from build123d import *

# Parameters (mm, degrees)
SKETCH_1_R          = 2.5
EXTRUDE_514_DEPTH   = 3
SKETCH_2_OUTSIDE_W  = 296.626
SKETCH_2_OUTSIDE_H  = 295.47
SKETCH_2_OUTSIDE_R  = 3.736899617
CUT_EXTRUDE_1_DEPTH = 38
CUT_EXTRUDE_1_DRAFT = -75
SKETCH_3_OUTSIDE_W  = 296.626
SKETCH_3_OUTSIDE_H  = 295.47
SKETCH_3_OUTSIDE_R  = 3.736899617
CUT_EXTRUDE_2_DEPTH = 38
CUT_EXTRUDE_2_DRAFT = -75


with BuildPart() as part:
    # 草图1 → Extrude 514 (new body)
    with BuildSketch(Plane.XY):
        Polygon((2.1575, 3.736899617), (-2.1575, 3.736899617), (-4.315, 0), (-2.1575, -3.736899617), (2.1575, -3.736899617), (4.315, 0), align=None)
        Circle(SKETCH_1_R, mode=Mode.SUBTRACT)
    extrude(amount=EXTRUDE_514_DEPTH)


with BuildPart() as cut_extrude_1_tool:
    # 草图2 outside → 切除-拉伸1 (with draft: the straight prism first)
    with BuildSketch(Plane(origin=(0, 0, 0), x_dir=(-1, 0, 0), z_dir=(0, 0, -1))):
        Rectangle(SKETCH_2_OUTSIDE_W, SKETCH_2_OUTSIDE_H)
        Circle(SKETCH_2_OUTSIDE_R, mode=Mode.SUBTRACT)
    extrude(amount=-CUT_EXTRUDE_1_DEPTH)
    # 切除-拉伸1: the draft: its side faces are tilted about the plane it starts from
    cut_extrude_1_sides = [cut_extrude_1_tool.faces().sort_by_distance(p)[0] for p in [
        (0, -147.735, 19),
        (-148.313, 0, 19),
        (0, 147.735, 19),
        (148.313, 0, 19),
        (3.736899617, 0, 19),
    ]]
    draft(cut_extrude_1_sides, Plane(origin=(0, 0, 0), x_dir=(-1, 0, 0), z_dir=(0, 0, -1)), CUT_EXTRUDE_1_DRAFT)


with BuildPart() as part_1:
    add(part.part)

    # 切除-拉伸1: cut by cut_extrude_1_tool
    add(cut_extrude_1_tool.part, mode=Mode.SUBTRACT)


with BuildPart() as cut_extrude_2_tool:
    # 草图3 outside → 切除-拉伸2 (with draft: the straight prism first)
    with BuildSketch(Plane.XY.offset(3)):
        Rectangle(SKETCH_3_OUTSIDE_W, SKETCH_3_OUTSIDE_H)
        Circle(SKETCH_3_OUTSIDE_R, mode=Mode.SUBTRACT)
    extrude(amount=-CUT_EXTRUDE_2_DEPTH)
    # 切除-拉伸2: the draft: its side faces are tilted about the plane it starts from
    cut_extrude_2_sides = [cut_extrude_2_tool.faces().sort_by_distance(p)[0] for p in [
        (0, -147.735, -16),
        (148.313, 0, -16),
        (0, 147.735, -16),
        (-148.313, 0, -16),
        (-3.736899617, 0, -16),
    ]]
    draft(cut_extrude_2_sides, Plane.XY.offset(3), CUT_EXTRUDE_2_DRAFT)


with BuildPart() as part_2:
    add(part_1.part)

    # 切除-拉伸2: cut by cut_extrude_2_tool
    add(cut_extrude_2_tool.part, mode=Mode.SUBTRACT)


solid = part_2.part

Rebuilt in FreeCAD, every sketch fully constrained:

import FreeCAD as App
import Part
import Sketcher
Q = App.Units.Quantity


def faces_at(feature, points):
    """Names of the faces that lie closest to the given points."""
    faces = feature.Shape.Faces
    near = lambda p: min(range(len(faces)), key=lambda i: faces[i].distToShape(Part.Vertex(*p))[0])
    return sorted({f"Face{near(p) + 1}" for p in points})

doc = App.newDocument("Part")
body = doc.addObject("PartDesign::Body", "Body")

# Sketch on XY plane
sketch1 = body.newObject("Sketcher::SketchObject", "Sketch")
sketch1.AttachmentSupport = (doc.getObject("XY_Plane"), [""])
sketch1.MapMode = "FlatFace"
sketch1.addGeometry([
    Part.LineSegment(App.Vector(2.2, 3.7, 0), App.Vector(-2.2, 3.7, 0)),  # 0
    Part.LineSegment(App.Vector(-2.2, 3.7, 0), App.Vector(-4.3, 0, 0)),  # 1
    Part.LineSegment(App.Vector(-4.3, 0, 0), App.Vector(-2.2, -3.7, 0)),  # 2
    Part.LineSegment(App.Vector(-2.2, -3.7, 0), App.Vector(2.2, -3.7, 0)),  # 3
    Part.LineSegment(App.Vector(2.2, -3.7, 0), App.Vector(4.3, 0, 0)),  # 4
    Part.LineSegment(App.Vector(4.3, 0, 0), App.Vector(2.2, 3.7, 0)),  # 5
    Part.Circle(App.Vector(0, 0, 0), App.Vector(0, 0, 1), 2.5),  # 6
], False)
sketch1.addConstraint([
    Sketcher.Constraint("Coincident", 0, 2, 1, 1),
    Sketcher.Constraint("Coincident", 1, 2, 2, 1),
    Sketcher.Constraint("Coincident", 2, 2, 3, 1),
    Sketcher.Constraint("Coincident", 3, 2, 4, 1),
    Sketcher.Constraint("Coincident", 4, 2, 5, 1),
    Sketcher.Constraint("Coincident", 5, 2, 0, 1),
    Sketcher.Constraint("Horizontal", 0),
    Sketcher.Constraint("Horizontal", 3),
    Sketcher.Constraint("Coincident", 6, 3, -1, 1),
    Sketcher.Constraint("Symmetric", 0, 2, 3, 2, -1, 1),
    Sketcher.Constraint("Symmetric", 1, 2, 4, 2, -1, 1),
    Sketcher.Constraint("PointOnObject", 1, 2, -1),
    Sketcher.Constraint("Parallel", 2, 5),
    Sketcher.Constraint("Vertical", 0, 2, 2, 2),
    Sketcher.Constraint("Diameter", 6, Q("5 mm")),
    Sketcher.Constraint("Angle", 1, Q("-120 deg")),
    Sketcher.Constraint("DistanceX", 0, 2, 0, 1, Q("4.315 mm")),
    Sketcher.Constraint("DistanceX", 1, 2, 4, 2, Q("8.63 mm")),
])
pad1 = body.newObject("PartDesign::Pad", "Pad")
pad1.Profile = sketch1
pad1.Length = 3
body2 = doc.addObject("PartDesign::Body", "Body001")

# Sketch on XY plane
sketch2 = body2.newObject("Sketcher::SketchObject", "Sketch001")
sketch2.AttachmentSupport = (doc.getObject("XY_Plane001"), [""])
sketch2.MapMode = "FlatFace"
sketch2.addGeometry([
    Part.LineSegment(App.Vector(148.3, 147.7, 0), App.Vector(148.3, -147.7, 0)),  # 0
    Part.LineSegment(App.Vector(148.3, -147.7, 0), App.Vector(-148.3, -147.7, 0)),  # 1
    Part.LineSegment(App.Vector(-148.3, -147.7, 0), App.Vector(-148.3, 147.7, 0)),  # 2
    Part.LineSegment(App.Vector(-148.3, 147.7, 0), App.Vector(148.3, 147.7, 0)),  # 3
    Part.Circle(App.Vector(0, 0, 0), App.Vector(0, 0, 1), 3.7),  # 4
], False)
sketch2.addConstraint([
    Sketcher.Constraint("Coincident", 0, 2, 1, 1),
    Sketcher.Constraint("Coincident", 1, 2, 2, 1),
    Sketcher.Constraint("Coincident", 2, 2, 3, 1),
    Sketcher.Constraint("Coincident", 3, 2, 0, 1),
    Sketcher.Constraint("Vertical", 0),
    Sketcher.Constraint("Horizontal", 1),
    Sketcher.Constraint("Vertical", 2),
    Sketcher.Constraint("Horizontal", 3),
    Sketcher.Constraint("Coincident", 4, 3, -1, 1),
    Sketcher.Constraint("Symmetric", 0, 2, 2, 2, -1, 1),
    Sketcher.Constraint("Diameter", 4, Q("7.473799 mm")),
    Sketcher.Constraint("DistanceY", 0, 2, 0, 1, Q("295.47 mm")),
    Sketcher.Constraint("DistanceX", 1, 2, 1, 1, Q("296.626 mm")),
])
pad2 = body2.newObject("PartDesign::Pad", "Pad001")
pad2.Profile = sketch2
pad2.Length = 38
doc.recompute()

draft = body2.newObject("PartDesign::Draft", "Draft")
draft.Base = (pad2, faces_at(pad2, [
    (0, -147.735, 19),
    (-148.313, 0, 19),
    (0, 147.735, 19),
    (148.313, 0, 19),
    (3.737, 0, 19),
]))
draft.NeutralPlane = (doc.getObject("XY_Plane001"), [""])
draft.Angle = 75
draft.Reversed = False
doc.recompute()

boolean = body.newObject("PartDesign::Boolean", "Boolean")
boolean.Type = "Cut"
boolean.addObjects([body2])
body3 = doc.addObject("PartDesign::Body", "Body002")

# Sketch on XY plane
sketch3 = body3.newObject("Sketcher::SketchObject", "Sketch002")
sketch3.AttachmentSupport = (doc.getObject("XY_Plane002"), [""])
sketch3.MapMode = "FlatFace"
sketch3.AttachmentOffset = App.Placement(App.Vector(0, 0, 3), App.Rotation())
sketch3.addGeometry([
    Part.LineSegment(App.Vector(-148.3, 147.7, 0), App.Vector(-148.3, -147.7, 0)),  # 0
    Part.LineSegment(App.Vector(-148.3, -147.7, 0), App.Vector(148.3, -147.7, 0)),  # 1
    Part.LineSegment(App.Vector(148.3, -147.7, 0), App.Vector(148.3, 147.7, 0)),  # 2
    Part.LineSegment(App.Vector(148.3, 147.7, 0), App.Vector(-148.3, 147.7, 0)),  # 3
    Part.Circle(App.Vector(0, 0, 0), App.Vector(0, 0, 1), 3.7),  # 4
], False)
sketch3.addConstraint([
    Sketcher.Constraint("Coincident", 0, 2, 1, 1),
    Sketcher.Constraint("Coincident", 1, 2, 2, 1),
    Sketcher.Constraint("Coincident", 2, 2, 3, 1),
    Sketcher.Constraint("Coincident", 3, 2, 0, 1),
    Sketcher.Constraint("Vertical", 0),
    Sketcher.Constraint("Horizontal", 1),
    Sketcher.Constraint("Vertical", 2),
    Sketcher.Constraint("Horizontal", 3),
    Sketcher.Constraint("Coincident", 4, 3, -1, 1),
    Sketcher.Constraint("Symmetric", 0, 2, 2, 2, -1, 1),
    Sketcher.Constraint("Diameter", 4, Q("7.473799 mm")),
    Sketcher.Constraint("DistanceY", 0, 2, 0, 1, Q("295.47 mm")),
    Sketcher.Constraint("DistanceX", 1, 1, 1, 2, Q("296.626 mm")),
])
pad3 = body3.newObject("PartDesign::Pad", "Pad002")
pad3.Profile = sketch3
pad3.Length = 38
pad3.Reversed = True
doc.recompute()

datumplane = body3.newObject("PartDesign::Plane", "DatumPlane")
datumplane.AttachmentSupport = (doc.getObject("XY_Plane002"), [""])
datumplane.MapMode = "FlatFace"
datumplane.AttachmentOffset = App.Placement(App.Vector(0, 0, 3), App.Rotation())
draft2 = body3.newObject("PartDesign::Draft", "Draft001")
draft2.Base = (pad3, faces_at(pad3, [
    (0, -147.735, -16),
    (148.313, 0, -16),
    (0, 147.735, -16),
    (-148.313, 0, -16),
    (-3.737, 0, -16),
]))
draft2.NeutralPlane = (datumplane, [""])
draft2.Angle = 75
draft2.Reversed = True
doc.recompute()

boolean2 = body.newObject("PartDesign::Boolean", "Boolean001")
boolean2.Type = "Cut"
boolean2.addObjects([body3])

doc.recompute()
